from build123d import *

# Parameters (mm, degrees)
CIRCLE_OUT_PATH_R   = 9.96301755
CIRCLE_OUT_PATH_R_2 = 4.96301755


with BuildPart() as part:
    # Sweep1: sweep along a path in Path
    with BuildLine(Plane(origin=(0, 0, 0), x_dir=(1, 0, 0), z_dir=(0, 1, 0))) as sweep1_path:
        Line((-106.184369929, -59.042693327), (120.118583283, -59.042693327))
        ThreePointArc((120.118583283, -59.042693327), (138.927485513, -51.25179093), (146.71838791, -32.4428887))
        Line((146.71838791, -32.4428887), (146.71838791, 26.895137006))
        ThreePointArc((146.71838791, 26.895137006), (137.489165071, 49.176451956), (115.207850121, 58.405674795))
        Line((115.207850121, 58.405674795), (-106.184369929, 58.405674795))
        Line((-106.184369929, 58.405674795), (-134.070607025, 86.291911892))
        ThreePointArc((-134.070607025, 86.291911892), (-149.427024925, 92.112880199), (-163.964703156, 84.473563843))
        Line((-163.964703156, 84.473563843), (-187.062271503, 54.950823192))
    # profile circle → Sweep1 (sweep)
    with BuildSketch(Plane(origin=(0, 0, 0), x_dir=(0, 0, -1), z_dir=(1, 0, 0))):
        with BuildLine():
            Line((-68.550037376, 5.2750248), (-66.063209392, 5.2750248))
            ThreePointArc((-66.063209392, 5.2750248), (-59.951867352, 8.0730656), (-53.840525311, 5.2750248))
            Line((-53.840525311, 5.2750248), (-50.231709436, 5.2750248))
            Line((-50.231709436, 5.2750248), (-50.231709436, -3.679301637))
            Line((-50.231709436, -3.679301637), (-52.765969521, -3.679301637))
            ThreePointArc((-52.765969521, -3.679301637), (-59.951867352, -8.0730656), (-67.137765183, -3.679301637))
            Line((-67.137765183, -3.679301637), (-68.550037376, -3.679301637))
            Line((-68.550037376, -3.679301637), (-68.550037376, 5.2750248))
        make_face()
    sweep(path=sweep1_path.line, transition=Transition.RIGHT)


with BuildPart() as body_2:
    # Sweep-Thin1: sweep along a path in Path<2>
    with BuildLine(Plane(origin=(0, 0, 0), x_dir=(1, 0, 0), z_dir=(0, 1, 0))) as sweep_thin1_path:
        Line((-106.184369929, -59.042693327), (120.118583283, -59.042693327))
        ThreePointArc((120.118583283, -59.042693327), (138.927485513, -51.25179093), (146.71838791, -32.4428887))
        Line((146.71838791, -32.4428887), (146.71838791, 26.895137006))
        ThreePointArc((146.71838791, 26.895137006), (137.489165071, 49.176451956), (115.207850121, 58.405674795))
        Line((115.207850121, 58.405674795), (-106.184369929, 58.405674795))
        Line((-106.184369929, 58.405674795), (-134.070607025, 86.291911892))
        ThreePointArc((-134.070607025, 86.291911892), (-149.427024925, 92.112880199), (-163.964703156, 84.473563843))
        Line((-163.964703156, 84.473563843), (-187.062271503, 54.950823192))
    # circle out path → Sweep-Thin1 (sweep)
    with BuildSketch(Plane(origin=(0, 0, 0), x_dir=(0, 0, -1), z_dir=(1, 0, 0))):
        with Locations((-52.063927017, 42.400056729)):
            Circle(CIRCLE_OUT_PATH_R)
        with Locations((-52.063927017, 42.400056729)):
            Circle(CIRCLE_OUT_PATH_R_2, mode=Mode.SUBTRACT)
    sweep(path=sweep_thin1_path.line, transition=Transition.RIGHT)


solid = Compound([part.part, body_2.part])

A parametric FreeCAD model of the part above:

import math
import FreeCAD as App
import Part
import Sketcher

V = App.Vector
Q = App.Units.Quantity

doc = App.newDocument("Part")
body = doc.addObject("PartDesign::Body", "Body")

sketch1 = doc.addObject("Sketcher::SketchObject", "Sketch")
body.addObject(sketch1)
sketch1.AttachmentSupport = (doc.YZ_Plane, [""])
sketch1.MapMode = "FlatFace"
sketch1.addGeometry(Part.LineSegment(V(5.3, 66.1, 0), V(5.3, 68.6, 0)), False)
sketch1.addGeometry(Part.LineSegment(V(5.3, 68.6, 0), V(-3.7, 68.6, 0)), False)
sketch1.addGeometry(Part.LineSegment(V(-3.7, 68.6, 0), V(-3.7, 67.1, 0)), False)
sketch1.addGeometry(Part.ArcOfCircle(Part.Circle(V(0, 60, 0), V(0, 0, 1), 8.1), math.radians(117), math.radians(243)), False)
sketch1.addGeometry(Part.LineSegment(V(-3.7, 52.8, 0), V(-3.7, 50.2, 0)), False)
sketch1.addGeometry(Part.LineSegment(V(-3.7, 50.2, 0), V(5.3, 50.2, 0)), False)
sketch1.addGeometry(Part.LineSegment(V(5.3, 50.2, 0), V(5.3, 53.8, 0)), False)
sketch1.addGeometry(Part.ArcOfCircle(Part.Circle(V(0, 60, 0), V(0, 0, 1), 8.1), math.radians(-49), math.radians(49)), False)
sketch1.addConstraint(Sketcher.Constraint("Coincident", 0, 2, 1, 1))
sketch1.addConstraint(Sketcher.Constraint("Coincident", 1, 2, 2, 1))
sketch1.addConstraint(Sketcher.Constraint("Coincident", 2, 2, 3, 1))
sketch1.addConstraint(Sketcher.Constraint("Coincident", 3, 2, 4, 1))
sketch1.addConstraint(Sketcher.Constraint("Coincident", 4, 2, 5, 1))
sketch1.addConstraint(Sketcher.Constraint("Coincident", 5, 2, 6, 1))
sketch1.addConstraint(Sketcher.Constraint("Coincident", 6, 2, 7, 1))
sketch1.addConstraint(Sketcher.Constraint("Coincident", 7, 2, 0, 1))
sketch1.addConstraint(Sketcher.Constraint("Vertical", 0))
sketch1.addConstraint(Sketcher.Constraint("Horizontal", 1))
sketch1.addConstraint(Sketcher.Constraint("Vertical", 2))
sketch1.addConstraint(Sketcher.Constraint("Vertical", 4))
sketch1.addConstraint(Sketcher.Constraint("Horizontal", 5))
sketch1.addConstraint(Sketcher.Constraint("Vertical", 6))
sketch1.addConstraint(Sketcher.Constraint("Coincident", 7, 3, 3, 3))
sketch1.addConstraint(Sketcher.Constraint("Equal", 3, 7))
sketch1.addConstraint(Sketcher.Constraint("PointOnObject", 3, 3, -2))
sketch1.addConstraint(Sketcher.Constraint("Vertical", 2, 2, 3, 2))
sketch1.addConstraint(Sketcher.Constraint("Vertical", 0, 2, 5, 2))
sketch1.addConstraint(Sketcher.Constraint("Radius", 3, 8.073066))
sketch1.addConstraint(Sketcher.Constraint("DistanceY", 4, 2, 4, 1, 2.53426))
sketch1.addConstraint(Sketcher.Constraint("DistanceX", 1, 2, -1, 1, 3.679302))
sketch1.addConstraint(Sketcher.Constraint("DistanceX", 1, 2, 1, 1, 8.954326))
sketch1.addConstraint(Sketcher.Constraint("DistanceY", 0, 1, 0, 2, 2.486828))
sketch1.addConstraint(Sketcher.Constraint("DistanceY", -1, 1, 3, 2, 52.76597))

sketch2 = doc.addObject("Sketcher::SketchObject", "Sketch001")
body.addObject(sketch2)
sketch2.AttachmentSupport = (doc.XZ_Plane, [""])
sketch2.MapMode = "FlatFace"
sketch2.addGeometry(Part.LineSegment(V(-106, 59, 0), V(120, 59, 0)), False)
sketch2.addGeometry(Part.ArcOfCircle(Part.Circle(V(120, 32, 0), V(0, 0, 1), 27), math.radians(0), math.radians(90)), False)
sketch2.addGeometry(Part.LineSegment(V(147, 32, 0), V(147, -27, 0)), False)
sketch2.addGeometry(Part.ArcOfCircle(Part.Circle(V(115, -27, 0), V(0, 0, 1), 32), math.radians(-90), math.radians(0)), False)
sketch2.addGeometry(Part.LineSegment(V(115, -58, 0), V(-106, -58, 0)), False)
sketch2.addGeometry(Part.LineSegment(V(-106, -58, 0), V(-134, -86, 0)), False)
sketch2.addGeometry(Part.ArcOfCircle(Part.Circle(V(-148, -72, 0), V(0, 0, 1), 20), math.radians(-142), math.radians(-45)), False)
sketch2.addGeometry(Part.LineSegment(V(-164, -84, 0), V(-187, -55, 0)), False)
sketch2.addConstraint(Sketcher.Constraint("Tangent", 0, 2, 1, 2))
sketch2.addConstraint(Sketcher.Constraint("Tangent", 1, 1, 2, 1))
sketch2.addConstraint(Sketcher.Constraint("Tangent", 2, 2, 3, 2))
sketch2.addConstraint(Sketcher.Constraint("Tangent", 3, 1, 4, 1))
sketch2.addConstraint(Sketcher.Constraint("Coincident", 4, 2, 5, 1))
sketch2.addConstraint(Sketcher.Constraint("Tangent", 5, 2, 6, 2))
sketch2.addConstraint(Sketcher.Constraint("Tangent", 6, 1, 7, 1))
sketch2.addConstraint(Sketcher.Constraint("Horizontal", 0))
sketch2.addConstraint(Sketcher.Constraint("Vertical", 2))
sketch2.addConstraint(Sketcher.Constraint("Horizontal", 4))
sketch2.addConstraint(Sketcher.Constraint("Vertical", 0, 1, 4, 2))
sketch2.addConstraint(Sketcher.Constraint("Radius", 6, 20.0))
sketch2.addConstraint(Sketcher.Constraint("Angle", 5, Q("-135 deg")))
sketch2.addConstraint(Sketcher.Constraint("Radius", 1, 26.599805))
sketch2.addConstraint(Sketcher.Constraint("Radius", 3, 31.510538))
sketch2.addConstraint(Sketcher.Constraint("DistanceX", 4, 2, 4, 1, 221.39222))
sketch2.addConstraint(Sketcher.Constraint("DistanceY", 6, 3, 4, 2, 13.744101))
sketch2.addConstraint(Sketcher.Constraint("DistanceX", 7, 2, 4, 2, 80.877902))
sketch2.addConstraint(Sketcher.Constraint("Distance", 7, 37.484529))
sketch2.addConstraint(Sketcher.Constraint("DistanceY", 2, 2, 2, 1, 59.338026))
sketch2.addConstraint(Sketcher.Constraint("DistanceY", -1, 1, 1, 3, 32.442889))
sketch2.addConstraint(Sketcher.Constraint("DistanceX", -1, 1, 3, 3, 115.20785))
doc.recompute()

additivepipe = doc.addObject("PartDesign::AdditivePipe", "AdditivePipe")
body.addObject(additivepipe)
additivepipe.Profile = sketch1
additivepipe.Spine = (sketch2, ["Edge1", "Edge2", "Edge3", "Edge4", "Edge5", "Edge6", "Edge7", "Edge8"])
additivepipe.Transition = "Right corner"
body2 = doc.addObject("PartDesign::Body", "Body001")

sketch3 = doc.addObject("Sketcher::SketchObject", "Sketch002")
body2.addObject(sketch3)
sketch3.AttachmentSupport = (doc.getObject("YZ_Plane001"), [""])
sketch3.MapMode = "FlatFace"
sketch3.addGeometry(Part.Circle(V(42.4, 52.1, 0), V(0, 0, 1), 10), False)
sketch3.addGeometry(Part.Circle(V(42.4, 52.1, 0), V(0, 0, 1), 5), False)
sketch3.addConstraint(Sketcher.Constraint("Coincident", 1, 3, 0, 3))
sketch3.addConstraint(Sketcher.Constraint("Diameter", 0, 19.926035))
sketch3.addConstraint(Sketcher.Constraint("Diameter", 1, 9.926035))
sketch3.addConstraint(Sketcher.Constraint("DistanceX", -1, 1, 0, 3, 42.400057))
sketch3.addConstraint(Sketcher.Constraint("DistanceY", -1, 1, 0, 3, 52.063927))

sketch4 = doc.addObject("Sketcher::SketchObject", "Sketch003")
body2.addObject(sketch4)
sketch4.AttachmentSupport = (doc.getObject("XZ_Plane001"), [""])
sketch4.MapMode = "FlatFace"
sketch4.addGeometry(Part.LineSegment(V(-106, 59, 0), V(120, 59, 0)), False)
sketch4.addGeometry(Part.ArcOfCircle(Part.Circle(V(120, 32, 0), V(0, 0, 1), 27), math.radians(0), math.radians(90)), False)
sketch4.addGeometry(Part.LineSegment(V(147, 32, 0), V(147, -27, 0)), False)
sketch4.addGeometry(Part.ArcOfCircle(Part.Circle(V(115, -27, 0), V(0, 0, 1), 32), math.radians(-90), math.radians(0)), False)
sketch4.addGeometry(Part.LineSegment(V(115, -58, 0), V(-106, -58, 0)), False)
sketch4.addGeometry(Part.LineSegment(V(-106, -58, 0), V(-134, -86, 0)), False)
sketch4.addGeometry(Part.ArcOfCircle(Part.Circle(V(-148, -72, 0), V(0, 0, 1), 20), math.radians(-142), math.radians(-45)), False)
sketch4.addGeometry(Part.LineSegment(V(-164, -84, 0), V(-187, -55, 0)), False)
sketch4.addConstraint(Sketcher.Constraint("Tangent", 0, 2, 1, 2))
sketch4.addConstraint(Sketcher.Constraint("Tangent", 1, 1, 2, 1))
sketch4.addConstraint(Sketcher.Constraint("Tangent", 2, 2, 3, 2))
sketch4.addConstraint(Sketcher.Constraint("Tangent", 3, 1, 4, 1))
sketch4.addConstraint(Sketcher.Constraint("Coincident", 4, 2, 5, 1))
sketch4.addConstraint(Sketcher.Constraint("Tangent", 5, 2, 6, 2))
sketch4.addConstraint(Sketcher.Constraint("Tangent", 6, 1, 7, 1))
sketch4.addConstraint(Sketcher.Constraint("Horizontal", 0))
sketch4.addConstraint(Sketcher.Constraint("Vertical", 2))
sketch4.addConstraint(Sketcher.Constraint("Horizontal", 4))
sketch4.addConstraint(Sketcher.Constraint("Vertical", 0, 1, 4, 2))
sketch4.addConstraint(Sketcher.Constraint("Radius", 6, 20.0))
sketch4.addConstraint(Sketcher.Constraint("Angle", 5, Q("-135 deg")))
sketch4.addConstraint(Sketcher.Constraint("Radius", 1, 26.599805))
sketch4.addConstraint(Sketcher.Constraint("Radius", 3, 31.510538))
sketch4.addConstraint(Sketcher.Constraint("DistanceX", 4, 2, 4, 1, 221.39222))
sketch4.addConstraint(Sketcher.Constraint("DistanceY", 6, 3, 4, 2, 13.744101))
sketch4.addConstraint(Sketcher.Constraint("DistanceX", 7, 2, 4, 2, 80.877902))
sketch4.addConstraint(Sketcher.Constraint("Distance", 7, 37.484529))
sketch4.addConstraint(Sketcher.Constraint("DistanceY", 2, 2, 2, 1, 59.338026))
sketch4.addConstraint(Sketcher.Constraint("DistanceY", -1, 1, 1, 3, 32.442889))
sketch4.addConstraint(Sketcher.Constraint("DistanceX", -1, 1, 3, 3, 115.20785))
doc.recompute()

additivepipe2 = doc.addObject("PartDesign::AdditivePipe", "AdditivePipe001")
body2.addObject(additivepipe2)
additivepipe2.Profile = sketch3
additivepipe2.Spine = (sketch4, ["Edge1", "Edge2", "Edge3", "Edge4", "Edge5", "Edge6", "Edge7", "Edge8"])
additivepipe2.Transition = "Right corner"

doc.recompute()
